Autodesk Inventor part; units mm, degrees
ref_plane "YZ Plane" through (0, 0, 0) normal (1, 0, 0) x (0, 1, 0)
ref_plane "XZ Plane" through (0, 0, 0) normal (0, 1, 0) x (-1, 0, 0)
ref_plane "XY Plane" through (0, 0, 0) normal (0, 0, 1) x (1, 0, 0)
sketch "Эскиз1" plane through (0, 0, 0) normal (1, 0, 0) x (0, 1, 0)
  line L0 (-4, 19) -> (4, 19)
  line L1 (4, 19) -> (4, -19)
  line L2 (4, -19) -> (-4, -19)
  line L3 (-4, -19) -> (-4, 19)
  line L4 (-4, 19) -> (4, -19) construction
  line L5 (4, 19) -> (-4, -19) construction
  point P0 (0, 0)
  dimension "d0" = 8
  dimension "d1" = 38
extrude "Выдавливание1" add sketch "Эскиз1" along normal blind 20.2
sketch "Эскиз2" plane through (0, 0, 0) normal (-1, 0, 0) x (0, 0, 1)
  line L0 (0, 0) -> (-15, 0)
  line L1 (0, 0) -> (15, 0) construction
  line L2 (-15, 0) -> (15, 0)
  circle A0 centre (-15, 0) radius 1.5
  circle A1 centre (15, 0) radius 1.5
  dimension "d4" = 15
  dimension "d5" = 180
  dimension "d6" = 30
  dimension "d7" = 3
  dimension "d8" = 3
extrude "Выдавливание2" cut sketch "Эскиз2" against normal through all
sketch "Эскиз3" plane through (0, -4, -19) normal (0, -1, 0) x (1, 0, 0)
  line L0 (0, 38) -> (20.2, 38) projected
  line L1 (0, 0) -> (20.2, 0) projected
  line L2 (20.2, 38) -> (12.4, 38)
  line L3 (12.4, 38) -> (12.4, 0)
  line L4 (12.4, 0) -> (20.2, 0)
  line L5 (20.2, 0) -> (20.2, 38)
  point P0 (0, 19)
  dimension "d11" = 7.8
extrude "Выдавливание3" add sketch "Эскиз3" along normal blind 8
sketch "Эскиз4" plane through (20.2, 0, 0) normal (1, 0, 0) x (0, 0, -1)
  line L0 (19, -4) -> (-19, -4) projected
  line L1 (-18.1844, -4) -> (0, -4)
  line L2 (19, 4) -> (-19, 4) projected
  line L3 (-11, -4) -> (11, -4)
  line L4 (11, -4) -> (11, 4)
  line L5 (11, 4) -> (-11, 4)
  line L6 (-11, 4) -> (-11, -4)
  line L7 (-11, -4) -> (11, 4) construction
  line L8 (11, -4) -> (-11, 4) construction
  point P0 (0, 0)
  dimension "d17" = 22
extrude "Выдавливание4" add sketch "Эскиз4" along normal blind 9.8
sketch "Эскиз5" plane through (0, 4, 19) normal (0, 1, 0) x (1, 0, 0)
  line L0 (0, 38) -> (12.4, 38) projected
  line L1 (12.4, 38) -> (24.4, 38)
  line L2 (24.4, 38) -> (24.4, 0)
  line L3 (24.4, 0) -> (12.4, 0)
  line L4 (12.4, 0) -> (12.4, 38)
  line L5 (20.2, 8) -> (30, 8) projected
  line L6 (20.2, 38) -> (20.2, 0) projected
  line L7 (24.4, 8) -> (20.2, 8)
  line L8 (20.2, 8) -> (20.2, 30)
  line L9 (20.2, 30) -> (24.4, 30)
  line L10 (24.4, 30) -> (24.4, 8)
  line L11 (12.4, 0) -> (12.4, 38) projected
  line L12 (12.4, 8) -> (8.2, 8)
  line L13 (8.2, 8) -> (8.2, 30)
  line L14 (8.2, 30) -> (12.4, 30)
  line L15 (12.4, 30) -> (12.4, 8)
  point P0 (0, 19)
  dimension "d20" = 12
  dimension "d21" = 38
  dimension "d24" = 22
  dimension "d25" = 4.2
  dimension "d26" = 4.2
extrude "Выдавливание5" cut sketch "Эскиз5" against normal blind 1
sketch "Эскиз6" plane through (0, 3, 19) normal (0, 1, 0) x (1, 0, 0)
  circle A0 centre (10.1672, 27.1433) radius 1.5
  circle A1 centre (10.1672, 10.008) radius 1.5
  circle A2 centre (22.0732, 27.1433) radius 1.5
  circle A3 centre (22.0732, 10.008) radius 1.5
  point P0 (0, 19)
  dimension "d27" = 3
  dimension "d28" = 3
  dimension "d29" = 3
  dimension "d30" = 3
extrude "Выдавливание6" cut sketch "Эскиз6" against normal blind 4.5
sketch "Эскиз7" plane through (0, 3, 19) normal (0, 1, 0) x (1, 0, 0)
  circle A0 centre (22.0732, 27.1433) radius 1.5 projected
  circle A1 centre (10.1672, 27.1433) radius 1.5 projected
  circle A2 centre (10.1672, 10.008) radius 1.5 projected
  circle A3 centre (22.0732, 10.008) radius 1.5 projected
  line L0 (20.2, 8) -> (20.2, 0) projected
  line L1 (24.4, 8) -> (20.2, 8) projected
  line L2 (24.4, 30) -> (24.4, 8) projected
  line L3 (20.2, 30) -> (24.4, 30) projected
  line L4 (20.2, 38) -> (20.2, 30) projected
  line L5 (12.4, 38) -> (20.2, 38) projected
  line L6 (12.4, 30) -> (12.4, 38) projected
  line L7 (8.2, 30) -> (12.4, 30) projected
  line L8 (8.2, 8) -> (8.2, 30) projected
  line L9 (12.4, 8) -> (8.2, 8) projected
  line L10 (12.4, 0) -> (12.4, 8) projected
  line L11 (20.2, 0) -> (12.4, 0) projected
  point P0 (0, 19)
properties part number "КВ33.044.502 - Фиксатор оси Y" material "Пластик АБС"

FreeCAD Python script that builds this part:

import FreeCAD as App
import Part
import Sketcher
from FreeCAD import Vector
Q = App.Units.Quantity

doc = App.newDocument("Part")
body = doc.addObject("PartDesign::Body", "Body")

# Sketch on YZ plane
sketch1 = body.newObject("Sketcher::SketchObject", "Sketch")
sketch1.AttachmentSupport = (doc.getObject("YZ_Plane"), [""])
sketch1.MapMode = "FlatFace"
sketch1.addGeometry(Part.LineSegment(Vector(4, 19, 0), Vector(-4, 19, 0)), False)
sketch1.addGeometry(Part.LineSegment(Vector(-4, 19, 0), Vector(-4, -19, 0)), False)
sketch1.addGeometry(Part.LineSegment(Vector(-4, -19, 0), Vector(4, -19, 0)), False)
sketch1.addGeometry(Part.LineSegment(Vector(4, -19, 0), Vector(4, 19, 0)), False)
sketch1.addConstraint(Sketcher.Constraint("Coincident", 0, 2, 1, 1))
sketch1.addConstraint(Sketcher.Constraint("Coincident", 1, 2, 2, 1))
sketch1.addConstraint(Sketcher.Constraint("Coincident", 2, 2, 3, 1))
sketch1.addConstraint(Sketcher.Constraint("Coincident", 3, 2, 0, 1))
sketch1.addConstraint(Sketcher.Constraint("Horizontal", 0))
sketch1.addConstraint(Sketcher.Constraint("Vertical", 1))
sketch1.addConstraint(Sketcher.Constraint("Horizontal", 2))
sketch1.addConstraint(Sketcher.Constraint("Vertical", 3))
sketch1.addConstraint(Sketcher.Constraint("Symmetric", 0, 2, 2, 2, -1, 1))
sketch1.addConstraint(Sketcher.Constraint("DistanceX", 0, 2, 0, 1, Q("8 mm")))
sketch1.addConstraint(Sketcher.Constraint("DistanceY", 1, 2, 1, 1, Q("38 mm")))
pad1 = body.newObject("PartDesign::Pad", "Pad")
pad1.Profile = sketch1
pad1.Length = 20.2

# Sketch on YZ plane
sketch2 = body.newObject("Sketcher::SketchObject", "Sketch001")
sketch2.AttachmentSupport = (doc.getObject("YZ_Plane"), [""])
sketch2.MapMode = "FlatFace"
sketch2.addGeometry(Part.Circle(Vector(0, -15, 0), Vector(0, 0, 1), 1.5), False)
sketch2.addGeometry(Part.Circle(Vector(0, 15, 0), Vector(0, 0, 1), 1.5), False)
sketch2.addConstraint(Sketcher.Constraint("Equal", 0, 1))
sketch2.addConstraint(Sketcher.Constraint("Symmetric", 0, 3, 1, 3, -1, 1))
sketch2.addConstraint(Sketcher.Constraint("PointOnObject", 0, 3, -2))
sketch2.addConstraint(Sketcher.Constraint("Diameter", 0, Q("3 mm")))
sketch2.addConstraint(Sketcher.Constraint("DistanceY", 0, 3, -1, 1, Q("15 mm")))
pocket1 = body.newObject("PartDesign::Pocket", "Pocket")
pocket1.Profile = sketch2
pocket1.Type = "ThroughAll"
pocket1.Reversed = True

# Sketch on XZ plane
sketch3 = body.newObject("Sketcher::SketchObject", "Sketch002")
sketch3.AttachmentSupport = (doc.getObject("XZ_Plane"), [""])
sketch3.MapMode = "FlatFace"
sketch3.AttachmentOffset = App.Placement(Vector(0, 0, 4), App.Rotation())
sketch3.addGeometry(Part.LineSegment(Vector(20, 19, 0), Vector(12, 19, 0)), False)
sketch3.addGeometry(Part.LineSegment(Vector(12, 19, 0), Vector(12, -19, 0)), False)
sketch3.addGeometry(Part.LineSegment(Vector(12, -19, 0), Vector(20, -19, 0)), False)
sketch3.addGeometry(Part.LineSegment(Vector(20, -19, 0), Vector(20, 19, 0)), False)
sketch3.addConstraint(Sketcher.Constraint("Coincident", 0, 2, 1, 1))
sketch3.addConstraint(Sketcher.Constraint("Coincident", 1, 2, 2, 1))
sketch3.addConstraint(Sketcher.Constraint("Coincident", 2, 2, 3, 1))
sketch3.addConstraint(Sketcher.Constraint("Coincident", 3, 2, 0, 1))
sketch3.addConstraint(Sketcher.Constraint("Horizontal", 0))
sketch3.addConstraint(Sketcher.Constraint("Vertical", 1))
sketch3.addConstraint(Sketcher.Constraint("Horizontal", 2))
sketch3.addConstraint(Sketcher.Constraint("Vertical", 3))
sketch3.addConstraint(Sketcher.Constraint("DistanceX", 0, 2, 0, 1, Q("7.8 mm")))
sketch3.addConstraint(Sketcher.Constraint("DistanceY", 1, 2, 1, 1, Q("38 mm")))
sketch3.addConstraint(Sketcher.Constraint("DistanceY", -1, 1, 0, 2, Q("19 mm")))
sketch3.addConstraint(Sketcher.Constraint("DistanceX", -1, 1, 0, 2, Q("12.4 mm")))
pad2 = body.newObject("PartDesign::Pad", "Pad001")
pad2.Profile = sketch3
pad2.Length = 8

# Sketch on YZ plane
sketch4 = body.newObject("Sketcher::SketchObject", "Sketch003")
sketch4.AttachmentSupport = (doc.getObject("YZ_Plane"), [""])
sketch4.MapMode = "FlatFace"
sketch4.AttachmentOffset = App.Placement(Vector(0, 0, 20.2), App.Rotation())
sketch4.addGeometry(Part.LineSegment(Vector(-4, 11, 0), Vector(-4, -11, 0)), False)
sketch4.addGeometry(Part.LineSegment(Vector(-4, -11, 0), Vector(4, -11, 0)), False)
sketch4.addGeometry(Part.LineSegment(Vector(4, -11, 0), Vector(4, 11, 0)), False)
sketch4.addGeometry(Part.LineSegment(Vector(4, 11, 0), Vector(-4, 11, 0)), False)
sketch4.addConstraint(Sketcher.Constraint("Coincident", 0, 2, 1, 1))
sketch4.addConstraint(Sketcher.Constraint("Coincident", 1, 2, 2, 1))
sketch4.addConstraint(Sketcher.Constraint("Coincident", 2, 2, 3, 1))
sketch4.addConstraint(Sketcher.Constraint("Coincident", 3, 2, 0, 1))
sketch4.addConstraint(Sketcher.Constraint("Vertical", 0))
sketch4.addConstraint(Sketcher.Constraint("Horizontal", 1))
sketch4.addConstraint(Sketcher.Constraint("Vertical", 2))
sketch4.addConstraint(Sketcher.Constraint("Horizontal", 3))
sketch4.addConstraint(Sketcher.Constraint("Symmetric", 0, 2, 2, 2, -1, 1))
sketch4.addConstraint(Sketcher.Constraint("DistanceY", 0, 2, 0, 1, Q("22 mm")))
sketch4.addConstraint(Sketcher.Constraint("DistanceX", 1, 1, 1, 2, Q("8 mm")))
pad3 = body.newObject("PartDesign::Pad", "Pad002")
pad3.Profile = sketch4
pad3.Length = 9.8

# Sketch on XZ plane
sketch5 = body.newObject("Sketcher::SketchObject", "Sketch004")
sketch5.AttachmentSupport = (doc.getObject("XZ_Plane"), [""])
sketch5.MapMode = "FlatFace"
sketch5.AttachmentOffset = App.Placement(Vector(0, 0, -4), App.Rotation())
sketch5.addGeometry(Part.LineSegment(Vector(12.4, -19, 0), Vector(12.4, -11, 0)), False)
sketch5.addGeometry(Part.LineSegment(Vector(12.4, -11, 0), Vector(8.2, -11, 0)), False)
sketch5.addGeometry(Part.LineSegment(Vector(8.2, -11, 0), Vector(8.2, 11, 0)), False)
sketch5.addGeometry(Part.LineSegment(Vector(8.2, 11, 0), Vector(12.4, 11, 0)), False)
sketch5.addGeometry(Part.LineSegment(Vector(12.4, 11, 0), Vector(12.4, 19, 0)), False)
sketch5.addGeometry(Part.LineSegment(Vector(12.4, 19, 0), Vector(24.4, 19, 0)), False)
sketch5.addGeometry(Part.LineSegment(Vector(24.4, 19, 0), Vector(24.4, -19, 0)), False)
sketch5.addGeometry(Part.LineSegment(Vector(24.4, -19, 0), Vector(12.4, -19, 0)), False)
sketch5.addConstraint(Sketcher.Constraint("Coincident", 0, 2, 1, 1))
sketch5.addConstraint(Sketcher.Constraint("Coincident", 1, 2, 2, 1))
sketch5.addConstraint(Sketcher.Constraint("Coincident", 2, 2, 3, 1))
sketch5.addConstraint(Sketcher.Constraint("Coincident", 3, 2, 4, 1))
sketch5.addConstraint(Sketcher.Constraint("Coincident", 4, 2, 5, 1))
sketch5.addConstraint(Sketcher.Constraint("Coincident", 5, 2, 6, 1))
sketch5.addConstraint(Sketcher.Constraint("Coincident", 6, 2, 7, 1))
sketch5.addConstraint(Sketcher.Constraint("Coincident", 7, 2, 0, 1))
sketch5.addConstraint(Sketcher.Constraint("Vertical", 0))
sketch5.addConstraint(Sketcher.Constraint("Horizontal", 1))
sketch5.addConstraint(Sketcher.Constraint("Vertical", 2))
sketch5.addConstraint(Sketcher.Constraint("Horizontal", 3))
sketch5.addConstraint(Sketcher.Constraint("Vertical", 4))
sketch5.addConstraint(Sketcher.Constraint("Horizontal", 5))
sketch5.addConstraint(Sketcher.Constraint("Vertical", 6))
sketch5.addConstraint(Sketcher.Constraint("Horizontal", 7))
sketch5.addConstraint(Sketcher.Constraint("Symmetric", 0, 2, 3, 2, -1))
sketch5.addConstraint(Sketcher.Constraint("Equal", 0, 4))
sketch5.addConstraint(Sketcher.Constraint("DistanceX", 5, 1, 5, 2, Q("12 mm")))
sketch5.addConstraint(Sketcher.Constraint("DistanceY", 2, 1, 2, 2, Q("22 mm")))
sketch5.addConstraint(Sketcher.Constraint("DistanceY", 6, 2, 6, 1, Q("38 mm")))
sketch5.addConstraint(Sketcher.Constraint("DistanceX", 1, 2, 1, 1, Q("4.2 mm")))
sketch5.addConstraint(Sketcher.Constraint("DistanceX", -1, 1, 0, 2, Q("12.4 mm")))
pocket2 = body.newObject("PartDesign::Pocket", "Pocket001")
pocket2.Profile = sketch5
pocket2.Length = 1
pocket2.Reversed = True

# Sketch on XZ plane
sketch6 = body.newObject("Sketcher::SketchObject", "Sketch005")
sketch6.AttachmentSupport = (doc.getObject("XZ_Plane"), [""])
sketch6.MapMode = "FlatFace"
sketch6.AttachmentOffset = App.Placement(Vector(0, 0, -3), App.Rotation())
sketch6.addGeometry(Part.Circle(Vector(10.2, -8.1, 0), Vector(0, 0, 1), 1.5), False)
sketch6.addGeometry(Part.Circle(Vector(10.2, 9, 0), Vector(0, 0, 1), 1.5), False)
sketch6.addGeometry(Part.Circle(Vector(22.1, -8.1, 0), Vector(0, 0, 1), 1.5), False)
sketch6.addGeometry(Part.Circle(Vector(22.1, 9, 0), Vector(0, 0, 1), 1.5), False)
sketch6.addConstraint(Sketcher.Constraint("Equal", 0, 1))
sketch6.addConstraint(Sketcher.Constraint("Equal", 1, 2))
sketch6.addConstraint(Sketcher.Constraint("Equal", 2, 3))
sketch6.addConstraint(Sketcher.Constraint("Horizontal", 0, 3, 2, 3))
sketch6.addConstraint(Sketcher.Constraint("Horizontal", 1, 3, 3, 3))
sketch6.addConstraint(Sketcher.Constraint("Vertical", 0, 3, 1, 3))
sketch6.addConstraint(Sketcher.Constraint("Vertical", 2, 3, 3, 3))
sketch6.addConstraint(Sketcher.Constraint("Diameter", 0, Q("3 mm")))
sketch6.addConstraint(Sketcher.Constraint("DistanceY", -1, 1, 1, 3, Q("8.992 mm")))
sketch6.addConstraint(Sketcher.Constraint("DistanceX", 0, 3, 2, 3, Q("11.906 mm")))
sketch6.addConstraint(Sketcher.Constraint("DistanceX", -1, 1, 0, 3, Q("10.1672 mm")))
sketch6.addConstraint(Sketcher.Constraint("DistanceY", 0, 3, -1, 1, Q("8.1433 mm")))
pocket3 = body.newObject("PartDesign::Pocket", "Pocket002")
pocket3.Profile = sketch6
pocket3.Length = 4.5
pocket3.Reversed = True

doc.recompute()
